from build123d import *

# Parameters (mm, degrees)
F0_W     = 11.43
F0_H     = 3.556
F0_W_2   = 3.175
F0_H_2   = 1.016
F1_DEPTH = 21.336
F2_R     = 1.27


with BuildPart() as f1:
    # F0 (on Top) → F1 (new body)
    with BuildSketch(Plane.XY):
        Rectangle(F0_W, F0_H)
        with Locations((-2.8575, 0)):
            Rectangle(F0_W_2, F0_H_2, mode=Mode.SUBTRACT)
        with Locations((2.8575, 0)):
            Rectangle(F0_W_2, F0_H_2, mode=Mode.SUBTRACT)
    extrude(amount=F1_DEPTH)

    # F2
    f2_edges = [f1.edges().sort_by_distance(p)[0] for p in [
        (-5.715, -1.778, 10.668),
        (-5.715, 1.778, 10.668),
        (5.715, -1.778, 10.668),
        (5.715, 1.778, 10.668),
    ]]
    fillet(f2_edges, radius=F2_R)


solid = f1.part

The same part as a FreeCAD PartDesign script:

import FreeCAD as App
import Part
import Sketcher
Q = App.Units.Quantity


def edges_at(feature, points):
    """Names of the edges that pass closest to the given points."""
    edges = feature.Shape.Edges
    near = lambda p: min(range(len(edges)), key=lambda i: edges[i].distToShape(Part.Vertex(*p))[0])
    return sorted({f"Edge{near(p) + 1}" for p in points})

doc = App.newDocument("Part")
body = doc.addObject("PartDesign::Body", "Body")

sketch1 = doc.addObject("Sketcher::SketchObject", "Sketch")
body.addObject(sketch1)
sketch1.AttachmentSupport = (doc.XY_Plane, [""])
sketch1.MapMode = "FlatFace"
sketch1.addGeometry([
    Part.LineSegment(App.Vector(-5.7, 1.8, 0), App.Vector(-5.7, -1.8, 0)),
    Part.LineSegment(App.Vector(-5.7, -1.8, 0), App.Vector(5.7, -1.8, 0)),
    Part.LineSegment(App.Vector(5.7, -1.8, 0), App.Vector(5.7, 1.8, 0)),
    Part.LineSegment(App.Vector(5.7, 1.8, 0), App.Vector(-5.7, 1.8, 0)),
    Part.LineSegment(App.Vector(-1.3, -0.5, 0), App.Vector(-4.4, -0.5, 0)),
    Part.LineSegment(App.Vector(-4.4, -0.5, 0), App.Vector(-4.4, 0.5, 0)),
    Part.LineSegment(App.Vector(-4.4, 0.5, 0), App.Vector(-1.3, 0.5, 0)),
    Part.LineSegment(App.Vector(-1.3, 0.5, 0), App.Vector(-1.3, -0.5, 0)),
    Part.LineSegment(App.Vector(4.4, -0.5, 0), App.Vector(1.3, -0.5, 0)),
    Part.LineSegment(App.Vector(1.3, -0.5, 0), App.Vector(1.3, 0.5, 0)),
    Part.LineSegment(App.Vector(1.3, 0.5, 0), App.Vector(4.4, 0.5, 0)),
    Part.LineSegment(App.Vector(4.4, 0.5, 0), App.Vector(4.4, -0.5, 0)),
], False)
sketch1.addConstraint([
    Sketcher.Constraint("Coincident", 0, 2, 1, 1),
    Sketcher.Constraint("Coincident", 1, 2, 2, 1),
    Sketcher.Constraint("Coincident", 2, 2, 3, 1),
    Sketcher.Constraint("Coincident", 3, 2, 0, 1),
    Sketcher.Constraint("Coincident", 4, 2, 5, 1),
    Sketcher.Constraint("Coincident", 5, 2, 6, 1),
    Sketcher.Constraint("Coincident", 6, 2, 7, 1),
    Sketcher.Constraint("Coincident", 7, 2, 4, 1),
    Sketcher.Constraint("Coincident", 8, 2, 9, 1),
    Sketcher.Constraint("Coincident", 9, 2, 10, 1),
    Sketcher.Constraint("Coincident", 10, 2, 11, 1),
    Sketcher.Constraint("Coincident", 11, 2, 8, 1),
    Sketcher.Constraint("Vertical", 0),
    Sketcher.Constraint("Horizontal", 1),
    Sketcher.Constraint("Vertical", 2),
    Sketcher.Constraint("Horizontal", 3),
    Sketcher.Constraint("Horizontal", 4),
    Sketcher.Constraint("Vertical", 5),
    Sketcher.Constraint("Horizontal", 6),
    Sketcher.Constraint("Vertical", 7),
    Sketcher.Constraint("Horizontal", 8),
    Sketcher.Constraint("Vertical", 9),
    Sketcher.Constraint("Horizontal", 10),
    Sketcher.Constraint("Vertical", 11),
    Sketcher.Constraint("Symmetric", 0, 2, 2, 2, -1, 1),
    Sketcher.Constraint("Symmetric", 6, 2, 8, 2, -1, 1),
    Sketcher.Constraint("Symmetric", 4, 2, 10, 2, -1, 1),
    Sketcher.Constraint("Horizontal", 7, 2, 8, 2),
    Sketcher.Constraint("DistanceX", 1, 1, 1, 2, Q("0.45 in")),
    Sketcher.Constraint("DistanceY", 0, 2, 0, 1, Q("0.14 in")),
    Sketcher.Constraint("DistanceY", 5, 1, 5, 2, Q("0.04 in")),
    Sketcher.Constraint("DistanceX", 4, 2, 1, 2, Q("0.4 in")),
    Sketcher.Constraint("DistanceX", 7, 2, 8, 2, Q("0.1 in")),
])
pad1 = doc.addObject("PartDesign::Pad", "Pad")
body.addObject(pad1)
pad1.Profile = sketch1
pad1.Length = Q("0.84 in")
doc.recompute()

fillet = doc.addObject("PartDesign::Fillet", "Fillet")
body.addObject(fillet)
fillet.Base = (pad1, edges_at(pad1, [
    (-5.715, -1.778, 10.668),
    (-5.715, 1.778, 10.668),
    (5.715, -1.778, 10.668),
    (5.715, 1.778, 10.668),
]))
fillet.Radius = Q("0.05 in")

doc.recompute()
